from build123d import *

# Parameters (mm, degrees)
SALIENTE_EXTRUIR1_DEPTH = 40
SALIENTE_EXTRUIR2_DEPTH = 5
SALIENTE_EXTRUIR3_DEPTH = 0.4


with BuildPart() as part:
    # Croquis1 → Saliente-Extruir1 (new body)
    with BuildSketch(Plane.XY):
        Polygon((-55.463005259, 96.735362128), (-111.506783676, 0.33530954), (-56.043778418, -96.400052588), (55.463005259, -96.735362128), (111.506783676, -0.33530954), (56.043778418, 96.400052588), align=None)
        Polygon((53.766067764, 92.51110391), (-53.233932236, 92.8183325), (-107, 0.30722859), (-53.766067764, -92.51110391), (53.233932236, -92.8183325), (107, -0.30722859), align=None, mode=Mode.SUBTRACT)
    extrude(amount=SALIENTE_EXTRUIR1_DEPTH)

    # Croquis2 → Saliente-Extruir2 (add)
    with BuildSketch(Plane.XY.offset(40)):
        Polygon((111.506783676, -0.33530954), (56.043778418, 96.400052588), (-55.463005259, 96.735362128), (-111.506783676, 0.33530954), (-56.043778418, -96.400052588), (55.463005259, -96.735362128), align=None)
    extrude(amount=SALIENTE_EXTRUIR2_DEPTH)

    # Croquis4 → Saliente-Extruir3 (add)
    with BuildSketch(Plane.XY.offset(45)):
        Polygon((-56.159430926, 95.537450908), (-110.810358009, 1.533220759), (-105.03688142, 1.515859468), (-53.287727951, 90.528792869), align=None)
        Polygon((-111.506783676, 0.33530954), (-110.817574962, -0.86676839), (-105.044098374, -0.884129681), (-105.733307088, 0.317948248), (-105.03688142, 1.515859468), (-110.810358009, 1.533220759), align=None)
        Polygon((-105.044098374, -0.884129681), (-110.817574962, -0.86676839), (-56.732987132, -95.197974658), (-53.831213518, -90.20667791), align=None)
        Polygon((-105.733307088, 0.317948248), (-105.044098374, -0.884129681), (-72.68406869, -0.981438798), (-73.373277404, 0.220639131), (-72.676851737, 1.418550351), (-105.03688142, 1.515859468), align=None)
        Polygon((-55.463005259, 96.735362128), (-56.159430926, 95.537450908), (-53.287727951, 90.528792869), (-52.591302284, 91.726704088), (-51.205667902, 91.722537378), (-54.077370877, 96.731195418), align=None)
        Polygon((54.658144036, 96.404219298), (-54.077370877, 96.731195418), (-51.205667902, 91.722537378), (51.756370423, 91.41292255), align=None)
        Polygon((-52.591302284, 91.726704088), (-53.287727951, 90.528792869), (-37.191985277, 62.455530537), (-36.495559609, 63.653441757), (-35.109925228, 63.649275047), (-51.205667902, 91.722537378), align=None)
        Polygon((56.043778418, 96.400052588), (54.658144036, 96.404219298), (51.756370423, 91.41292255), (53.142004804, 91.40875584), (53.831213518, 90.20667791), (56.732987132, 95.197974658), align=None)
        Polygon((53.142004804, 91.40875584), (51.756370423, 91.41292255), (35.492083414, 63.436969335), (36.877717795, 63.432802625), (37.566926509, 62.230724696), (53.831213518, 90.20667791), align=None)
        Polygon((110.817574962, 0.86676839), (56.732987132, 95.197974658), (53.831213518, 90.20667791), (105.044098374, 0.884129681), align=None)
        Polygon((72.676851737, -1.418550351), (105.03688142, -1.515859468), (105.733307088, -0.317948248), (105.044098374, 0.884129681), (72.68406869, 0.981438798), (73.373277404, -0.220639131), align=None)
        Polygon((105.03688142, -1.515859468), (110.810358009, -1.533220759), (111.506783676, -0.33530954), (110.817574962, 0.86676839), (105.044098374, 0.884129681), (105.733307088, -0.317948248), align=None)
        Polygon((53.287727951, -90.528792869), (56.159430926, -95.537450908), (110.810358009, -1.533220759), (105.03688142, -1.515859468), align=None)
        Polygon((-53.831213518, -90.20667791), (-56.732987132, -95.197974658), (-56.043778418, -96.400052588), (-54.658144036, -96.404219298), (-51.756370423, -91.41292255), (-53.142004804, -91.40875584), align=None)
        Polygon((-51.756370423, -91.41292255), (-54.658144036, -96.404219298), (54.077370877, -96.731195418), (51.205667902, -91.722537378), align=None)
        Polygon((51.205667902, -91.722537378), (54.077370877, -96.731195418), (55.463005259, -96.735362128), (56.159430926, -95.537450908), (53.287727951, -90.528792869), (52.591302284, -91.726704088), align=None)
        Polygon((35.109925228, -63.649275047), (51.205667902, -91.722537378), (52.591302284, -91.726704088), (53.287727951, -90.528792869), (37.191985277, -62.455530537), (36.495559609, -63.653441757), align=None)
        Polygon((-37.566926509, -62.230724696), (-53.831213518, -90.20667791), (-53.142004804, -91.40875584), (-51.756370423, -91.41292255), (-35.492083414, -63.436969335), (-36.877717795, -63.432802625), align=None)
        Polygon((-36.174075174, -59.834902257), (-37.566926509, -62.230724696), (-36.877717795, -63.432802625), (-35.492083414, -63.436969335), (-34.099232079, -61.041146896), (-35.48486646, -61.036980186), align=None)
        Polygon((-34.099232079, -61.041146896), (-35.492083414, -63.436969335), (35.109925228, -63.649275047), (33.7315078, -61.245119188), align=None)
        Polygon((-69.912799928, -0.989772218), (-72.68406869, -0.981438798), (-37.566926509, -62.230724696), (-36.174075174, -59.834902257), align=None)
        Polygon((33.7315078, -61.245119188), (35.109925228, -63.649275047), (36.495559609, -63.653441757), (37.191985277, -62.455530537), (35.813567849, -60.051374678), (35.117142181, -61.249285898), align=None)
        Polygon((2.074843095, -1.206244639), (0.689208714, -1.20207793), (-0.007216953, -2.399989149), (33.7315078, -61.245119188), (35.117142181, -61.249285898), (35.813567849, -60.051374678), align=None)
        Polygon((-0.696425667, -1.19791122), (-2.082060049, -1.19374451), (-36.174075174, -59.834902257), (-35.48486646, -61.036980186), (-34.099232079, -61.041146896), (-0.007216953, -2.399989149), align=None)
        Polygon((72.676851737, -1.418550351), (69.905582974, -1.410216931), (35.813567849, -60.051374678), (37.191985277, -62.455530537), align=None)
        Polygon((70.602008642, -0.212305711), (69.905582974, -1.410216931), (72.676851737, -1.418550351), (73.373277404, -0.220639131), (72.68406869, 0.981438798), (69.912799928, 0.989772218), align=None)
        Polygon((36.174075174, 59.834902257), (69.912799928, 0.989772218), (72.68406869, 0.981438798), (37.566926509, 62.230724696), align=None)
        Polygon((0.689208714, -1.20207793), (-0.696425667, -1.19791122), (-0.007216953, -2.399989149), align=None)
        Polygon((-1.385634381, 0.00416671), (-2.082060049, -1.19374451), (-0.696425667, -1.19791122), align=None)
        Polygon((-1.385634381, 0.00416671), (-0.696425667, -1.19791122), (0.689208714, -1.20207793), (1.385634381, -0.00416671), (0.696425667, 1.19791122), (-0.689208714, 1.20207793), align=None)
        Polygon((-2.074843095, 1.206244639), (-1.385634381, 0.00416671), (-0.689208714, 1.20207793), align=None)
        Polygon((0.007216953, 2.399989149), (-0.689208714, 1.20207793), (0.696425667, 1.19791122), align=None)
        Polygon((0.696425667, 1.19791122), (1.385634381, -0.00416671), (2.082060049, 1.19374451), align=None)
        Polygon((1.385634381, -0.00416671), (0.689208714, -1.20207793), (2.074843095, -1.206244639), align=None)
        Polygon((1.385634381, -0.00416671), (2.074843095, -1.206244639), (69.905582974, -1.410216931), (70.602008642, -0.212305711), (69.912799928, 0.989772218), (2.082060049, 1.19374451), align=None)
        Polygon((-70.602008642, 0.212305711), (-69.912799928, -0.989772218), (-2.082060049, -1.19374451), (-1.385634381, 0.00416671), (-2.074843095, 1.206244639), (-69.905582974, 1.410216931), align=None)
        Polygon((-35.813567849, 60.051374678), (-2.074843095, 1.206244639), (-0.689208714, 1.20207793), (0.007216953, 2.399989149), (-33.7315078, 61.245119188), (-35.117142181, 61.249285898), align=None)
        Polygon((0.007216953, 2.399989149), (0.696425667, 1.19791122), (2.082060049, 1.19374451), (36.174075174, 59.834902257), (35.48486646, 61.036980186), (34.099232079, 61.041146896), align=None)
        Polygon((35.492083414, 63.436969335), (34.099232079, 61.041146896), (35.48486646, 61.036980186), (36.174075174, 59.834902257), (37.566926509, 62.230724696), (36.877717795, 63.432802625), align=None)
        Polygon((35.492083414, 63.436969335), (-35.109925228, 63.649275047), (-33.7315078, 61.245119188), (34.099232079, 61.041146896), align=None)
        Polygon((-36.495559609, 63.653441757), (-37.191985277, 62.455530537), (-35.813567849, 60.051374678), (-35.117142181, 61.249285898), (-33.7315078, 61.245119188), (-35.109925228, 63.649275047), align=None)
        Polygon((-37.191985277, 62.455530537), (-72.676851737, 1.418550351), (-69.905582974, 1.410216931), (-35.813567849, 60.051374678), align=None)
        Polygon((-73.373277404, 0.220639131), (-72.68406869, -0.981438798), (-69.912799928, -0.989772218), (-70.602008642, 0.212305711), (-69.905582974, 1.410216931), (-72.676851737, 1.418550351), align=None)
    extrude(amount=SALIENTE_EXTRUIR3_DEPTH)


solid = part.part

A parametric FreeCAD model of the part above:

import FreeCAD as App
import Part
import Sketcher

doc = App.newDocument("Part")
body = doc.addObject("PartDesign::Body", "Body")

# Sketch on XY plane
sketch1 = body.newObject("Sketcher::SketchObject", "Sketch")
sketch1.AttachmentSupport = (doc.getObject("XY_Plane"), [""])
sketch1.MapMode = "FlatFace"
sketch1.addGeometry(Part.LineSegment(App.Vector(-55, 97, 0), App.Vector(-112, 0, 0)), False)
sketch1.addGeometry(Part.LineSegment(App.Vector(-112, 0, 0), App.Vector(-56, -96, 0)), False)
sketch1.addGeometry(Part.LineSegment(App.Vector(-56, -96, 0), App.Vector(55, -97, 0)), False)
sketch1.addGeometry(Part.LineSegment(App.Vector(55, -97, 0), App.Vector(112, 0, 0)), False)
sketch1.addGeometry(Part.LineSegment(App.Vector(112, 0, 0), App.Vector(56, 96, 0)), False)
sketch1.addGeometry(Part.LineSegment(App.Vector(56, 96, 0), App.Vector(-55, 97, 0)), False)
sketch1.addGeometry(Part.LineSegment(App.Vector(-53, 93, 0), App.Vector(54, 93, 0)), False)
sketch1.addGeometry(Part.LineSegment(App.Vector(54, 93, 0), App.Vector(107, 0, 0)), False)
sketch1.addGeometry(Part.LineSegment(App.Vector(107, 0, 0), App.Vector(53, -93, 0)), False)
sketch1.addGeometry(Part.LineSegment(App.Vector(53, -93, 0), App.Vector(-54, -93, 0)), False)
sketch1.addGeometry(Part.LineSegment(App.Vector(-54, -93, 0), App.Vector(-107, 0, 0)), False)
sketch1.addGeometry(Part.LineSegment(App.Vector(-107, 0, 0), App.Vector(-53, 93, 0)), False)
sketch1.addConstraint(Sketcher.Constraint("Coincident", 0, 2, 1, 1))
sketch1.addConstraint(Sketcher.Constraint("Coincident", 1, 2, 2, 1))
sketch1.addConstraint(Sketcher.Constraint("Coincident", 2, 2, 3, 1))
sketch1.addConstraint(Sketcher.Constraint("Coincident", 3, 2, 4, 1))
sketch1.addConstraint(Sketcher.Constraint("Coincident", 4, 2, 5, 1))
sketch1.addConstraint(Sketcher.Constraint("Coincident", 5, 2, 0, 1))
sketch1.addConstraint(Sketcher.Constraint("Coincident", 6, 2, 7, 1))
sketch1.addConstraint(Sketcher.Constraint("Coincident", 7, 2, 8, 1))
sketch1.addConstraint(Sketcher.Constraint("Coincident", 8, 2, 9, 1))
sketch1.addConstraint(Sketcher.Constraint("Coincident", 9, 2, 10, 1))
sketch1.addConstraint(Sketcher.Constraint("Coincident", 10, 2, 11, 1))
sketch1.addConstraint(Sketcher.Constraint("Coincident", 11, 2, 6, 1))
sketch1.addConstraint(Sketcher.Constraint("Symmetric", 0, 2, 3, 2, -1, 1))
sketch1.addConstraint(Sketcher.Constraint("Symmetric", 1, 2, 4, 2, -1, 1))
sketch1.addConstraint(Sketcher.Constraint("Symmetric", 2, 2, 5, 2, -1, 1))
sketch1.addConstraint(Sketcher.Constraint("Symmetric", 6, 2, 9, 2, -1, 1))
sketch1.addConstraint(Sketcher.Constraint("Symmetric", 7, 2, 10, 2, -1, 1))
sketch1.addConstraint(Sketcher.Constraint("Symmetric", 8, 2, 11, 2, -1, 1))
sketch1.addConstraint(Sketcher.Constraint("Equal", 0, 1))
sketch1.addConstraint(Sketcher.Constraint("Equal", 1, 2))
sketch1.addConstraint(Sketcher.Constraint("Equal", 6, 7))
sketch1.addConstraint(Sketcher.Constraint("Equal", 7, 8))
sketch1.addConstraint(Sketcher.Constraint("DistanceX", -1, 1, 7, 2, 107.0))
sketch1.addConstraint(Sketcher.Constraint("DistanceX", 9, 2, 8, 2, 107.0))
sketch1.addConstraint(Sketcher.Constraint("DistanceY", -1, 1, 0, 2, 0.33531))
sketch1.addConstraint(Sketcher.Constraint("DistanceX", 1, 2, -1, 1, 56.043778))
sketch1.addConstraint(Sketcher.Constraint("DistanceY", 7, 2, -1, 1, 0.307229))
sketch1.addConstraint(Sketcher.Constraint("DistanceY", 2, 2, 1, 2, 0.33531))
sketch1.addConstraint(Sketcher.Constraint("DistanceX", 0, 2, 2, 2, 166.969789))
sketch1.addConstraint(Sketcher.Constraint("DistanceX", 6, 2, 4, 2, 2.277711))
pad1 = body.newObject("PartDesign::Pad", "Pad")
pad1.Profile = sketch1
pad1.Length = 40

# Sketch on XY plane
sketch2 = body.newObject("Sketcher::SketchObject", "Sketch001")
sketch2.AttachmentSupport = (doc.getObject("XY_Plane"), [""])
sketch2.MapMode = "FlatFace"
sketch2.AttachmentOffset = App.Placement(App.Vector(0, 0, 40), App.Rotation())
sketch2.addGeometry(Part.LineSegment(App.Vector(112, 0, 0), App.Vector(56, 96, 0)), False)
sketch2.addGeometry(Part.LineSegment(App.Vector(56, 96, 0), App.Vector(-55, 97, 0)), False)
sketch2.addGeometry(Part.LineSegment(App.Vector(-55, 97, 0), App.Vector(-112, 0, 0)), False)
sketch2.addGeometry(Part.LineSegment(App.Vector(-112, 0, 0), App.Vector(-56, -96, 0)), False)
sketch2.addGeometry(Part.LineSegment(App.Vector(-56, -96, 0), App.Vector(55, -97, 0)), False)
sketch2.addGeometry(Part.LineSegment(App.Vector(55, -97, 0), App.Vector(112, 0, 0)), False)
sketch2.addConstraint(Sketcher.Constraint("Coincident", 0, 2, 1, 1))
sketch2.addConstraint(Sketcher.Constraint("Coincident", 1, 2, 2, 1))
sketch2.addConstraint(Sketcher.Constraint("Coincident", 2, 2, 3, 1))
sketch2.addConstraint(Sketcher.Constraint("Coincident", 3, 2, 4, 1))
sketch2.addConstraint(Sketcher.Constraint("Coincident", 4, 2, 5, 1))
sketch2.addConstraint(Sketcher.Constraint("Coincident", 5, 2, 0, 1))
sketch2.addConstraint(Sketcher.Constraint("Symmetric", 0, 2, 3, 2, -1, 1))
sketch2.addConstraint(Sketcher.Constraint("Symmetric", 1, 2, 4, 2, -1, 1))
sketch2.addConstraint(Sketcher.Constraint("Symmetric", 2, 2, 5, 2, -1, 1))
sketch2.addConstraint(Sketcher.Constraint("Equal", 0, 1))
sketch2.addConstraint(Sketcher.Constraint("Equal", 1, 2))
sketch2.addConstraint(Sketcher.Constraint("DistanceX", -1, 1, 0, 2, 56.043778))
sketch2.addConstraint(Sketcher.Constraint("DistanceY", -1, 1, 2, 2, 0.33531))
sketch2.addConstraint(Sketcher.Constraint("DistanceY", 0, 2, 1, 2, 0.33531))
sketch2.addConstraint(Sketcher.Constraint("DistanceX", 2, 2, 1, 2, 56.043778))
pad2 = body.newObject("PartDesign::Pad", "Pad001")
pad2.Profile = sketch2
pad2.Length = 5

# Sketch on XY plane
sketch3 = body.newObject("Sketcher::SketchObject", "Sketch002")
sketch3.AttachmentSupport = (doc.getObject("XY_Plane"), [""])
sketch3.MapMode = "FlatFace"
sketch3.AttachmentOffset = App.Placement(App.Vector(0, 0, 45), App.Rotation())
sketch3.addGeometry(Part.LineSegment(App.Vector(-56.2, 95.5, 0), App.Vector(-110.8, 1.5, 0)), False)
sketch3.addGeometry(Part.LineSegment(App.Vector(-110.8, 1.5, 0), App.Vector(-111.5, 0.3, 0)), False)
sketch3.addGeometry(Part.LineSegment(App.Vector(-111.5, 0.3, 0), App.Vector(-110.8, -0.9, 0)), False)
sketch3.addGeometry(Part.LineSegment(App.Vector(-110.8, -0.9, 0), App.Vector(-56.7, -95.2, 0)), False)
sketch3.addGeometry(Part.LineSegment(App.Vector(-56.7, -95.2, 0), App.Vector(-56, -96.4, 0)), False)
sketch3.addGeometry(Part.LineSegment(App.Vector(-56, -96.4, 0), App.Vector(-54.7, -96.4, 0)), False)
sketch3.addGeometry(Part.LineSegment(App.Vector(-54.7, -96.4, 0), App.Vector(54.1, -96.7, 0)), False)
sketch3.addGeometry(Part.LineSegment(App.Vector(54.1, -96.7, 0), App.Vector(55.5, -96.7, 0)), False)
sketch3.addGeometry(Part.LineSegment(App.Vector(55.5, -96.7, 0), App.Vector(56.2, -95.5, 0)), False)
sketch3.addGeometry(Part.LineSegment(App.Vector(56.2, -95.5, 0), App.Vector(110.8, -1.5, 0)), False)
sketch3.addGeometry(Part.LineSegment(App.Vector(110.8, -1.5, 0), App.Vector(111.5, -0.3, 0)), False)
sketch3.addGeometry(Part.LineSegment(App.Vector(111.5, -0.3, 0), App.Vector(110.8, 0.9, 0)), False)
sketch3.addGeometry(Part.LineSegment(App.Vector(110.8, 0.9, 0), App.Vector(56.7, 95.2, 0)), False)
sketch3.addGeometry(Part.LineSegment(App.Vector(56.7, 95.2, 0), App.Vector(56, 96.4, 0)), False)
sketch3.addGeometry(Part.LineSegment(App.Vector(56, 96.4, 0), App.Vector(54.7, 96.4, 0)), False)
sketch3.addGeometry(Part.LineSegment(App.Vector(54.7, 96.4, 0), App.Vector(-54.1, 96.7, 0)), False)
sketch3.addGeometry(Part.LineSegment(App.Vector(-54.1, 96.7, 0), App.Vector(-55.5, 96.7, 0)), False)
sketch3.addGeometry(Part.LineSegment(App.Vector(-55.5, 96.7, 0), App.Vector(-56.2, 95.5, 0)), False)
sketch3.addGeometry(Part.LineSegment(App.Vector(-35.5, -63.4, 0), App.Vector(35.1, -63.6, 0)), False)
sketch3.addGeometry(Part.LineSegment(App.Vector(35.1, -63.6, 0), App.Vector(51.2, -91.7, 0)), False)
sketch3.addGeometry(Part.LineSegment(App.Vector(51.2, -91.7, 0), App.Vector(-51.8, -91.4, 0)), False)
sketch3.addGeometry(Part.LineSegment(App.Vector(-51.8, -91.4, 0), App.Vector(-35.5, -63.4, 0)), False)
sketch3.addGeometry(Part.LineSegment(App.Vector(-105, -0.9, 0), App.Vector(-72.7, -1, 0)), False)
sketch3.addGeometry(Part.LineSegment(App.Vector(-72.7, -1, 0), App.Vector(-37.6, -62.2, 0)), False)
sketch3.addGeometry(Part.LineSegment(App.Vector(-37.6, -62.2, 0), App.Vector(-53.8, -90.2, 0)), False)
sketch3.addGeometry(Part.LineSegment(App.Vector(-53.8, -90.2, 0), App.Vector(-105, -0.9, 0)), False)
sketch3.addGeometry(Part.LineSegment(App.Vector(-36.2, -59.8, 0), App.Vector(-69.9, -1, 0)), False)
sketch3.addGeometry(Part.LineSegment(App.Vector(-69.9, -1, 0), App.Vector(-2.1, -1.2, 0)), False)
sketch3.addGeometry(Part.LineSegment(App.Vector(-2.1, -1.2, 0), App.Vector(-36.2, -59.8, 0)), False)
sketch3.addGeometry(Part.LineSegment(App.Vector(-34.1, -61, 0), App.Vector(0, -2.4, 0)), False)
sketch3.addGeometry(Part.LineSegment(App.Vector(0, -2.4, 0), App.Vector(33.7, -61.2, 0)), False)
sketch3.addGeometry(Part.LineSegment(App.Vector(33.7, -61.2, 0), App.Vector(-34.1, -61, 0)), False)
sketch3.addGeometry(Part.LineSegment(App.Vector(37.2, -62.5, 0), App.Vector(72.7, -1.4, 0)), False)
sketch3.addGeometry(Part.LineSegment(App.Vector(72.7, -1.4, 0), App.Vector(105, -1.5, 0)), False)
sketch3.addGeometry(Part.LineSegment(App.Vector(105, -1.5, 0), App.Vector(53.3, -90.5, 0)), False)
sketch3.addGeometry(Part.LineSegment(App.Vector(53.3, -90.5, 0), App.Vector(37.2, -62.5, 0)), False)
sketch3.addGeometry(Part.LineSegment(App.Vector(35.8, -60.1, 0), App.Vector(2.1, -1.2, 0)), False)
sketch3.addGeometry(Part.LineSegment(App.Vector(2.1, -1.2, 0), App.Vector(69.9, -1.4, 0)), False)
sketch3.addGeometry(Part.LineSegment(App.Vector(69.9, -1.4, 0), App.Vector(35.8, -60.1, 0)), False)
sketch3.addGeometry(Part.LineSegment(App.Vector(-2.1, 1.2, 0), App.Vector(-69.9, 1.4, 0)), False)
sketch3.addGeometry(Part.LineSegment(App.Vector(-69.9, 1.4, 0), App.Vector(-35.8, 60.1, 0)), False)
sketch3.addGeometry(Part.LineSegment(App.Vector(-35.8, 60.1, 0), App.Vector(-2.1, 1.2, 0)), False)
sketch3.addGeometry(Part.LineSegment(App.Vector(-37.2, 62.5, 0), App.Vector(-72.7, 1.4, 0)), False)
sketch3.addGeometry(Part.LineSegment(App.Vector(-72.7, 1.4, 0), App.Vector(-105, 1.5, 0)), False)
sketch3.addGeometry(Part.LineSegment(App.Vector(-105, 1.5, 0), App.Vector(-53.3, 90.5, 0)), False)
sketch3.addGeometry(Part.LineSegment(App.Vector(-53.3, 90.5, 0), App.Vector(-37.2, 62.5, 0)), False)
sketch3.addGeometry(Part.LineSegment(App.Vector(0, 2.4, 0), App.Vector(-33.7, 61.2, 0)), False)
sketch3.addGeometry(Part.LineSegment(App.Vector(-33.7, 61.2, 0), App.Vector(34.1, 61, 0)), False)
sketch3.addGeometry(Part.LineSegment(App.Vector(34.1, 61, 0), App.Vector(0, 2.4, 0)), False)
sketch3.addGeometry(Part.LineSegment(App.Vector(2.1, 1.2, 0), App.Vector(36.2, 59.8, 0)), False)
sketch3.addGeometry(Part.LineSegment(App.Vector(36.2, 59.8, 0), App.Vector(69.9, 1, 0)), False)
sketch3.addGeometry(Part.LineSegment(App.Vector(69.9, 1, 0), App.Vector(2.1, 1.2, 0)), False)
sketch3.addGeometry(Part.LineSegment(App.Vector(72.7, 1, 0), App.Vector(37.6, 62.2, 0)), False)
sketch3.addGeometry(Part.LineSegment(App.Vector(37.6, 62.2, 0), App.Vector(53.8, 90.2, 0)), False)
sketch3.addGeometry(Part.LineSegment(App.Vector(53.8, 90.2, 0), App.Vector(105, 0.9, 0)), False)
sketch3.addGeometry(Part.LineSegment(App.Vector(105, 0.9, 0), App.Vector(72.7, 1, 0)), False)
sketch3.addGeometry(Part.LineSegment(App.Vector(35.5, 63.4, 0), App.Vector(-35.1, 63.6, 0)), False)
sketch3.addGeometry(Part.LineSegment(App.Vector(-35.1, 63.6, 0), App.Vector(-51.2, 91.7, 0)), False)
sketch3.addGeometry(Part.LineSegment(App.Vector(-51.2, 91.7, 0), App.Vector(51.8, 91.4, 0)), False)
sketch3.addGeometry(Part.LineSegment(App.Vector(51.8, 91.4, 0), App.Vector(35.5, 63.4, 0)), False)
sketch3.addConstraint(Sketcher.Constraint("Coincident", 0, 2, 1, 1))
sketch3.addConstraint(Sketcher.Constraint("Coincident", 1, 2, 2, 1))
sketch3.addConstraint(Sketcher.Constraint("Coincident", 2, 2, 3, 1))
sketch3.addConstraint(Sketcher.Constraint("Coincident", 3, 2, 4, 1))
sketch3.addConstraint(Sketcher.Constraint("Coincident", 4, 2, 5, 1))
sketch3.addConstraint(Sketcher.Constraint("Coincident", 5, 2, 6, 1))
sketch3.addConstraint(Sketcher.Constraint("Coincident", 6, 2, 7, 1))
sketch3.addConstraint(Sketcher.Constraint("Coincident", 7, 2, 8, 1))
sketch3.addConstraint(Sketcher.Constraint("Coincident", 8, 2, 9, 1))
sketch3.addConstraint(Sketcher.Constraint("Coincident", 9, 2, 10, 1))
sketch3.addConstraint(Sketcher.Constraint("Coincident", 10, 2, 11, 1))
sketch3.addConstraint(Sketcher.Constraint("Coincident", 11, 2, 12, 1))
sketch3.addConstraint(Sketcher.Constraint("Coincident", 12, 2, 13, 1))
sketch3.addConstraint(Sketcher.Constraint("Coincident", 13, 2, 14, 1))
sketch3.addConstraint(Sketcher.Constraint("Coincident", 14, 2, 15, 1))
sketch3.addConstraint(Sketcher.Constraint("Coincident", 15, 2, 16, 1))
sketch3.addConstraint(Sketcher.Constraint("Coincident", 16, 2, 17, 1))
sketch3.addConstraint(Sketcher.Constraint("Coincident", 17, 2, 0, 1))
sketch3.addConstraint(Sketcher.Constraint("Coincident", 18, 2, 19, 1))
sketch3.addConstraint(Sketcher.Constraint("Coincident", 19, 2, 20, 1))
sketch3.addConstraint(Sketcher.Constraint("Coincident", 20, 2, 21, 1))
sketch3.addConstraint(Sketcher.Constraint("Coincident", 21, 2, 18, 1))
sketch3.addConstraint(Sketcher.Constraint("Coincident", 22, 2, 23, 1))
sketch3.addConstraint(Sketcher.Constraint("Coincident", 23, 2, 24, 1))
sketch3.addConstraint(Sketcher.Constraint("Coincident", 24, 2, 25, 1))
sketch3.addConstraint(Sketcher.Constraint("Coincident", 25, 2, 22, 1))
sketch3.addConstraint(Sketcher.Constraint("Coincident", 26, 2, 27, 1))
sketch3.addConstraint(Sketcher.Constraint("Coincident", 27, 2, 28, 1))
sketch3.addConstraint(Sketcher.Constraint("Coincident", 28, 2, 26, 1))
sketch3.addConstraint(Sketcher.Constraint("Coincident", 29, 2, 30, 1))
sketch3.addConstraint(Sketcher.Constraint("Coincident", 30, 2, 31, 1))
sketch3.addConstraint(Sketcher.Constraint("Coincident", 31, 2, 29, 1))
sketch3.addConstraint(Sketcher.Constraint("Coincident", 32, 2, 33, 1))
sketch3.addConstraint(Sketcher.Constraint("Coincident", 33, 2, 34, 1))
sketch3.addConstraint(Sketcher.Constraint("Coincident", 34, 2, 35, 1))
sketch3.addConstraint(Sketcher.Constraint("Coincident", 35, 2, 32, 1))
sketch3.addConstraint(Sketcher.Constraint("Coincident", 36, 2, 37, 1))
sketch3.addConstraint(Sketcher.Constraint("Coincident", 37, 2, 38, 1))
sketch3.addConstraint(Sketcher.Constraint("Coincident", 38, 2, 36, 1))
sketch3.addConstraint(Sketcher.Constraint("Coincident", 39, 2, 40, 1))
sketch3.addConstraint(Sketcher.Constraint("Coincident", 40, 2, 41, 1))
sketch3.addConstraint(Sketcher.Constraint("Coincident", 41, 2, 39, 1))
sketch3.addConstraint(Sketcher.Constraint("Coincident", 42, 2, 43, 1))
sketch3.addConstraint(Sketcher.Constraint("Coincident", 43, 2, 44, 1))
sketch3.addConstraint(Sketcher.Constraint("Coincident", 44, 2, 45, 1))
sketch3.addConstraint(Sketcher.Constraint("Coincident", 45, 2, 42, 1))
sketch3.addConstraint(Sketcher.Constraint("Coincident", 46, 2, 47, 1))
sketch3.addConstraint(Sketcher.Constraint("Coincident", 47, 2, 48, 1))
sketch3.addConstraint(Sketcher.Constraint("Coincident", 48, 2, 46, 1))
sketch3.addConstraint(Sketcher.Constraint("Coincident", 49, 2, 50, 1))
sketch3.addConstraint(Sketcher.Constraint("Coincident", 50, 2, 51, 1))
sketch3.addConstraint(Sketcher.Constraint("Coincident", 51, 2, 49, 1))
sketch3.addConstraint(Sketcher.Constraint("Coincident", 52, 2, 53, 1))
sketch3.addConstraint(Sketcher.Constraint("Coincident", 53, 2, 54, 1))
sketch3.addConstraint(Sketcher.Constraint("Coincident", 54, 2, 55, 1))
sketch3.addConstraint(Sketcher.Constraint("Coincident", 55, 2, 52, 1))
sketch3.addConstraint(Sketcher.Constraint("Coincident", 56, 2, 57, 1))
sketch3.addConstraint(Sketcher.Constraint("Coincident", 57, 2, 58, 1))
sketch3.addConstraint(Sketcher.Constraint("Coincident", 58, 2, 59, 1))
sketch3.addConstraint(Sketcher.Constraint("Coincident", 59, 2, 56, 1))
sketch3.addConstraint(Sketcher.Constraint("Symmetric", 0, 2, 9, 2, -1, 1))
sketch3.addConstraint(Sketcher.Constraint("Symmetric", 1, 2, 10, 2, -1, 1))
sketch3.addConstraint(Sketcher.Constraint("Symmetric", 2, 2, 11, 2, -1, 1))
sketch3.addConstraint(Sketcher.Constraint("Symmetric", 3, 2, 12, 2, -1, 1))
sketch3.addConstraint(Sketcher.Constraint("Symmetric", 4, 2, 13, 2, -1, 1))
sketch3.addConstraint(Sketcher.Constraint("Symmetric", 5, 2, 14, 2, -1, 1))
sketch3.addConstraint(Sketcher.Constraint("Symmetric", 6, 2, 15, 2, -1, 1))
sketch3.addConstraint(Sketcher.Constraint("Symmetric", 7, 2, 16, 2, -1, 1))
sketch3.addConstraint(Sketcher.Constraint("Symmetric", 8, 2, 17, 2, -1, 1))
sketch3.addConstraint(Sketcher.Constraint("Symmetric", 37, 2, 39, 2, -1, 1))
sketch3.addConstraint(Sketcher.Constraint("Symmetric", 38, 2, 40, 2, -1, 1))
sketch3.addConstraint(Sketcher.Constraint("Symmetric", 36, 2, 41, 2, -1, 1))
sketch3.addConstraint(Sketcher.Constraint("Symmetric", 32, 2, 42, 2, -1, 1))
sketch3.addConstraint(Sketcher.Constraint("Symmetric", 33, 2, 43, 2, -1, 1))
sketch3.addConstraint(Sketcher.Constraint("Symmetric", 34, 2, 44, 2, -1, 1))
sketch3.addConstraint(Sketcher.Constraint("Symmetric", 35, 2, 45, 2, -1, 1))
sketch3.addConstraint(Sketcher.Constraint("Symmetric", 30, 2, 46, 2, -1, 1))
sketch3.addConstraint(Sketcher.Constraint("Symmetric", 31, 2, 47, 2, -1, 1))
sketch3.addConstraint(Sketcher.Constraint("Symmetric", 29, 2, 48, 2, -1, 1))
sketch3.addConstraint(Sketcher.Constraint("Symmetric", 28, 2, 49, 2, -1, 1))
sketch3.addConstraint(Sketcher.Constraint("Symmetric", 26, 2, 50, 2, -1, 1))
sketch3.addConstraint(Sketcher.Constraint("Symmetric", 27, 2, 51, 2, -1, 1))
sketch3.addConstraint(Sketcher.Constraint("Symmetric", 23, 2, 52, 2, -1, 1))
sketch3.addConstraint(Sketcher.Constraint("Symmetric", 24, 2, 53, 2, -1, 1))
sketch3.addConstraint(Sketcher.Constraint("Symmetric", 25, 2, 54, 2, -1, 1))
sketch3.addConstraint(Sketcher.Constraint("Symmetric", 22, 2, 55, 2, -1, 1))
sketch3.addConstraint(Sketcher.Constraint("Symmetric", 18, 2, 56, 2, -1, 1))
sketch3.addConstraint(Sketcher.Constraint("Symmetric", 19, 2, 57, 2, -1, 1))
sketch3.addConstraint(Sketcher.Constraint("Symmetric", 20, 2, 58, 2, -1, 1))
sketch3.addConstraint(Sketcher.Constraint("Symmetric", 21, 2, 59, 2, -1, 1))
sketch3.addConstraint(Sketcher.Constraint("Parallel", 0, 1))
sketch3.addConstraint(Sketcher.Constraint("Parallel", 2, 3))
sketch3.addConstraint(Sketcher.Constraint("Parallel", 3, 4))
sketch3.addConstraint(Sketcher.Constraint("Parallel", 5, 6))
sketch3.addConstraint(Sketcher.Constraint("Parallel", 6, 7))
sketch3.addConstraint(Sketcher.Constraint("Parallel", 1, 8))
sketch3.addConstraint(Sketcher.Constraint("Parallel", 16, 18))
sketch3.addConstraint(Sketcher.Constraint("Parallel", 13, 19))
sketch3.addConstraint(Sketcher.Constraint("Parallel", 18, 20))
sketch3.addConstraint(Sketcher.Constraint("Parallel", 17, 21))
sketch3.addConstraint(Sketcher.Constraint("Parallel", 20, 22))
sketch3.addConstraint(Sketcher.Constraint("Parallel", 19, 23))
sketch3.addConstraint(Sketcher.Constraint("Parallel", 21, 24))
sketch3.addConstraint(Sketcher.Constraint("Parallel", 23, 25))
sketch3.addConstraint(Sketcher.Constraint("Parallel", 25, 26))
sketch3.addConstraint(Sketcher.Constraint("Parallel", 22, 27))
sketch3.addConstraint(Sketcher.Constraint("Parallel", 24, 28))
sketch3.addConstraint(Sketcher.Constraint("Parallel", 28, 29))
sketch3.addConstraint(Sketcher.Constraint("Parallel", 26, 30))
sketch3.addConstraint(Sketcher.Constraint("Parallel", 27, 31))
sketch3.addConstraint(Sketcher.Constraint("Parallel", 29, 32))
sketch3.addConstraint(Sketcher.Constraint("Parallel", 31, 33))
sketch3.addConstraint(Sketcher.Constraint("Parallel", 32, 34))
sketch3.addConstraint(Sketcher.Constraint("Parallel", 30, 35))
sketch3.addConstraint(Sketcher.Constraint("Parallel", 35, 36))
sketch3.addConstraint(Sketcher.Constraint("Parallel", 33, 37))
sketch3.addConstraint(Sketcher.Constraint("Parallel", 34, 38))
sketch3.addConstraint(Sketcher.Constraint("Equal", 1, 2))
sketch3.addConstraint(Sketcher.Constraint("Equal", 0, 3))
sketch3.addConstraint(Sketcher.Constraint("Equal", 2, 4))
sketch3.addConstraint(Sketcher.Constraint("Equal", 4, 5))
sketch3.addConstraint(Sketcher.Constraint("Equal", 3, 6))
sketch3.addConstraint(Sketcher.Constraint("Equal", 5, 7))
sketch3.addConstraint(Sketcher.Constraint("Equal", 7, 8))
sketch3.addConstraint(Sketcher.Constraint("Equal", 19, 21))
sketch3.addConstraint(Sketcher.Constraint("Equal", 21, 22))
sketch3.addConstraint(Sketcher.Constraint("Equal", 18, 23))
sketch3.addConstraint(Sketcher.Constraint("Equal", 22, 24))
sketch3.addConstraint(Sketcher.Constraint("Equal", 28, 29))
sketch3.addConstraint(Sketcher.Constraint("Equal", 23, 32))
sketch3.addConstraint(Sketcher.Constraint("Equal", 24, 33))
sketch3.addConstraint(Sketcher.Constraint("Equal", 31, 36))
sketch3.addConstraint(Sketcher.Constraint("DistanceY", 5, 2, 9, 2, 94.870999))
sketch3.addConstraint(Sketcher.Constraint("DistanceX", 25, 2, -1, 1, 105.044098))
sketch3.addConstraint(Sketcher.Constraint("DistanceX", 26, 2, -1, 1, 69.9128))
sketch3.addConstraint(Sketcher.Constraint("DistanceY", 4, 2, 8, 2, 0.862602))
sketch3.addConstraint(Sketcher.Constraint("DistanceX", 22, 2, 20, 2, 20.927698))
sketch3.addConstraint(Sketcher.Constraint("DistanceY", 36, 2, 27, 2, 0.0125))
sketch3.addConstraint(Sketcher.Constraint("DistanceX", 37, 2, 33, 2, 35.131298))
sketch3.addConstraint(Sketcher.Constraint("DistanceX", 37, 2, 10, 2, 41.601201))
sketch3.addConstraint(Sketcher.Constraint("DistanceY", 18, 2, 38, 2, 3.5979))
sketch3.addConstraint(Sketcher.Constraint("DistanceX", 38, 2, 19, 2, 15.3921))
sketch3.addConstraint(Sketcher.Constraint("DistanceY", 33, 2, 55, 2, 2.497298))
sketch3.addConstraint(Sketcher.Constraint("Distance", 1, 1.385641))
sketch3.addConstraint(Sketcher.Constraint("DistanceX", 20, 2, -1, 1, 51.75637))
sketch3.addConstraint(Sketcher.Constraint("DistanceY", 21, 2, -1, 1, 63.436969))
sketch3.addConstraint(Sketcher.Constraint("DistanceY", 22, 2, -1, 1, 0.981439))
sketch3.addConstraint(Sketcher.Constraint("DistanceX", 27, 2, -1, 1, 2.08206))
sketch3.addConstraint(Sketcher.Constraint("DistanceY", 29, 2, -1, 1, 2.399989))
sketch3.addConstraint(Sketcher.Constraint("DistanceX", 28, 2, 29, 2, 36.166858))
pad3 = body.newObject("PartDesign::Pad", "Pad002")
pad3.Profile = sketch3
pad3.Length = 0.4

doc.recompute()
